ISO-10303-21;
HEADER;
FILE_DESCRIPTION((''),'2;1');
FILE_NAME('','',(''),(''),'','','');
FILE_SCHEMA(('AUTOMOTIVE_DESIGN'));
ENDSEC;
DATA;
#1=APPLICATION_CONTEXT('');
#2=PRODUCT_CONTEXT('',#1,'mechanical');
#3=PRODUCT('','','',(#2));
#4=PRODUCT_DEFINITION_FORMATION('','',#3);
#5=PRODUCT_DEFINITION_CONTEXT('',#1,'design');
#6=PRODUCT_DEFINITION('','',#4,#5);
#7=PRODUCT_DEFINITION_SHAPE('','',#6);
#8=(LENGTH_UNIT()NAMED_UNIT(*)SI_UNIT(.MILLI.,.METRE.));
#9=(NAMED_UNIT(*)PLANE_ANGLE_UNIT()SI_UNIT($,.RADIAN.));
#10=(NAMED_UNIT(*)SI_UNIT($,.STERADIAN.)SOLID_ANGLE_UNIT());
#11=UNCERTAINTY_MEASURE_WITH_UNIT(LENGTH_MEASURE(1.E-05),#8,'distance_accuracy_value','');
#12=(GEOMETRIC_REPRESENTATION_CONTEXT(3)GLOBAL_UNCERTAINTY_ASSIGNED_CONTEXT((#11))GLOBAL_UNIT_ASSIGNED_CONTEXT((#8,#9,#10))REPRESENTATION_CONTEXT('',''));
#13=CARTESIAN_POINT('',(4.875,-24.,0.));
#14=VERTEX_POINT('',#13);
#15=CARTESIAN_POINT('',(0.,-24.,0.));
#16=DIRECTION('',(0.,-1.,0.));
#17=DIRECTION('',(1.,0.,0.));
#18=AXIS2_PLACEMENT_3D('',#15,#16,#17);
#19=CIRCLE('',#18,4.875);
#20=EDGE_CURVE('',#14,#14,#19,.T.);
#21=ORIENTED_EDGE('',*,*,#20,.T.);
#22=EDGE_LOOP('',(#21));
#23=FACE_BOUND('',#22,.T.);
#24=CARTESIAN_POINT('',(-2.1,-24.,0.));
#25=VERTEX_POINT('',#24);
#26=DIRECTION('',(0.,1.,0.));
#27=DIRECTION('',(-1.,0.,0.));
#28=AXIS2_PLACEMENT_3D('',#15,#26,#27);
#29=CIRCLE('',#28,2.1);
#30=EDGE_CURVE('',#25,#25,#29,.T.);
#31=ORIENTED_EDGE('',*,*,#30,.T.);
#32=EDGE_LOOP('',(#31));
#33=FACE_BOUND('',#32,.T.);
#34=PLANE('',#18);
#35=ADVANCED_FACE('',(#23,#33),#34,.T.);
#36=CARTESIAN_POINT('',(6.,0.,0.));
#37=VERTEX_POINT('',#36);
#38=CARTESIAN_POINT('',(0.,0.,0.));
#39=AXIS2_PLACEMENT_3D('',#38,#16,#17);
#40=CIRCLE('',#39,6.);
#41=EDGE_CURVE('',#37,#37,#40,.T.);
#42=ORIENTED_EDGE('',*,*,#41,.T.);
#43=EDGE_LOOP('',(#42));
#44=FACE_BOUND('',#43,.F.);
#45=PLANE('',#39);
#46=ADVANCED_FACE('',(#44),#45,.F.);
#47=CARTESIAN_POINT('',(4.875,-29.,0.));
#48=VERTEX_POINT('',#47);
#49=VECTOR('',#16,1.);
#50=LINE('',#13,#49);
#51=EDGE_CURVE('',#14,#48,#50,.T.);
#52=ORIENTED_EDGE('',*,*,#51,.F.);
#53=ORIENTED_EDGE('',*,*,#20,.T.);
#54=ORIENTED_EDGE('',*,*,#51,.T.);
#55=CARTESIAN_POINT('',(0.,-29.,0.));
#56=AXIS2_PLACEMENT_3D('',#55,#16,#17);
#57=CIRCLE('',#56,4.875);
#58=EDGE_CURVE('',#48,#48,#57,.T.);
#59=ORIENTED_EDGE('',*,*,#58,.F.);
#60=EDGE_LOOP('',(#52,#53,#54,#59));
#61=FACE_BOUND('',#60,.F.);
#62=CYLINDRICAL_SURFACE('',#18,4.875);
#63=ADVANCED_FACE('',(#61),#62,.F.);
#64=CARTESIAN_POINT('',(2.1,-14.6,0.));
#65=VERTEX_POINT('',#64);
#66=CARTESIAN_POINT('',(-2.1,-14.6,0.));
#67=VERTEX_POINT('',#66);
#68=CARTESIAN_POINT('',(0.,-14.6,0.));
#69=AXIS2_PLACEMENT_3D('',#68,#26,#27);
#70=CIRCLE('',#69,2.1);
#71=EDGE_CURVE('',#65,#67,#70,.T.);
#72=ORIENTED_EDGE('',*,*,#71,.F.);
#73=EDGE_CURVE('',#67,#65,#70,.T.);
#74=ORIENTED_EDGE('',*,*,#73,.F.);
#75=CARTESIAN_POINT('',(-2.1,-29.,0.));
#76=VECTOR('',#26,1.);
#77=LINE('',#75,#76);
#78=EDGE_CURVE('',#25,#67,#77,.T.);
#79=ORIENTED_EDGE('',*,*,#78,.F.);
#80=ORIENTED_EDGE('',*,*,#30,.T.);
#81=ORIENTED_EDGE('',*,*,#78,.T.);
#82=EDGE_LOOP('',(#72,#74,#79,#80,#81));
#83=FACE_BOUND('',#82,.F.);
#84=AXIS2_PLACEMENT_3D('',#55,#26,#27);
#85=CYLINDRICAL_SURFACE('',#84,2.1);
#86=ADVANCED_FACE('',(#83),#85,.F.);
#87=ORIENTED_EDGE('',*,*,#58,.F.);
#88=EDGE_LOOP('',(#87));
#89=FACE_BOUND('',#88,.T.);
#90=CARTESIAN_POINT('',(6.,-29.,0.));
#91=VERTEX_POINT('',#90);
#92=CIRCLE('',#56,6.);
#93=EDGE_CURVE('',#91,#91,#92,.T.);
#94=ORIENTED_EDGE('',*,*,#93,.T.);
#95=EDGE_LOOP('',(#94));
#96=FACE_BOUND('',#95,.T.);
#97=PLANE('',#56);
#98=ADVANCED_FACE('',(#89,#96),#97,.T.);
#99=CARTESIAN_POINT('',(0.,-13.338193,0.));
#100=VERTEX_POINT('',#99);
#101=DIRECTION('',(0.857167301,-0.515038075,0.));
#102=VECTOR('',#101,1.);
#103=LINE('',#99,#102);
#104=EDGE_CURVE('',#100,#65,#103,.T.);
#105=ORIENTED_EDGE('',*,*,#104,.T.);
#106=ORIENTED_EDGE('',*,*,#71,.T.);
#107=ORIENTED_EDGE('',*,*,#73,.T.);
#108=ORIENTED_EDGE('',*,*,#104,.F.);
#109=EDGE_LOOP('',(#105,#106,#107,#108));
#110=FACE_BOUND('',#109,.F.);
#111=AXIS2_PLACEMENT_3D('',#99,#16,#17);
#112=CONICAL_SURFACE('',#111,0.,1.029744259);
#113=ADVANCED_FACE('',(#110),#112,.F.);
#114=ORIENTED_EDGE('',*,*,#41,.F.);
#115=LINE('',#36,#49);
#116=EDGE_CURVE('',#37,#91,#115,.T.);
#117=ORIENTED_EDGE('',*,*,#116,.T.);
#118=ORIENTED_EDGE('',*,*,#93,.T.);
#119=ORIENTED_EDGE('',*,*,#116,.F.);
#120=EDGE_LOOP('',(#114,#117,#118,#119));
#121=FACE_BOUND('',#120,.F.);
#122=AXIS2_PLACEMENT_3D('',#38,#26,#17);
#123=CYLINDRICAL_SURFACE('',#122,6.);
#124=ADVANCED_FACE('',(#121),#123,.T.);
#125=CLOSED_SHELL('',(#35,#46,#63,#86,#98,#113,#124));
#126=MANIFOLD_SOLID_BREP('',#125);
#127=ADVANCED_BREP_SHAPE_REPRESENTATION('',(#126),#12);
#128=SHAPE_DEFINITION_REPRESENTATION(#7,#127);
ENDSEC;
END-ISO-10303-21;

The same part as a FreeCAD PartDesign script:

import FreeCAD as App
import Part
import Sketcher
from FreeCAD import Vector

doc = App.newDocument("Part")
body = doc.addObject("PartDesign::Body", "Body")

sketch1 = body.newObject("Sketcher::SketchObject", "Sketch")
sketch1.AttachmentSupport = (doc.getObject("XZ_Plane"), [""])
sketch1.MapMode = "FlatFace"
sketch1.addGeometry(Part.Circle(Vector(0, 0, 0), Vector(0, 0, 1), 6), False)
sketch1.addConstraint(Sketcher.Constraint("Coincident", 0, 3, -1, 1))
sketch1.addConstraint(Sketcher.Constraint("Diameter", 0, 12.0))
pad1 = body.newObject("PartDesign::Pad", "Pad")
pad1.Profile = sketch1
pad1.Length = 29

sketch2 = body.newObject("Sketcher::SketchObject", "Sketch001")
sketch2.AttachmentSupport = (doc.getObject("XZ_Plane"), [""])
sketch2.MapMode = "FlatFace"
sketch2.AttachmentOffset = App.Placement(Vector(0, 0, 29), App.Rotation())
sketch2.addGeometry(Part.Circle(Vector(0, 0, 0), Vector(0, 0, 1), 2.1), False)
sketch2.addConstraint(Sketcher.Constraint("Coincident", 0, 3, -1, 1))
sketch2.addConstraint(Sketcher.Constraint("Diameter", 0, 4.2))
doc.recompute()
hole = body.newObject("PartDesign::Hole", "Hole")
hole.Profile = sketch2
hole.ThreadType = "None"
hole.Diameter = 4.2
hole.DepthType = "Dimension"
hole.Depth = 14.4
hole.DrillPoint = "Angled"
hole.DrillPointAngle = 118
hole.HoleCutType = "Counterbore"
hole.HoleCutDiameter = 9.75
hole.HoleCutDepth = 5

doc.recompute()
